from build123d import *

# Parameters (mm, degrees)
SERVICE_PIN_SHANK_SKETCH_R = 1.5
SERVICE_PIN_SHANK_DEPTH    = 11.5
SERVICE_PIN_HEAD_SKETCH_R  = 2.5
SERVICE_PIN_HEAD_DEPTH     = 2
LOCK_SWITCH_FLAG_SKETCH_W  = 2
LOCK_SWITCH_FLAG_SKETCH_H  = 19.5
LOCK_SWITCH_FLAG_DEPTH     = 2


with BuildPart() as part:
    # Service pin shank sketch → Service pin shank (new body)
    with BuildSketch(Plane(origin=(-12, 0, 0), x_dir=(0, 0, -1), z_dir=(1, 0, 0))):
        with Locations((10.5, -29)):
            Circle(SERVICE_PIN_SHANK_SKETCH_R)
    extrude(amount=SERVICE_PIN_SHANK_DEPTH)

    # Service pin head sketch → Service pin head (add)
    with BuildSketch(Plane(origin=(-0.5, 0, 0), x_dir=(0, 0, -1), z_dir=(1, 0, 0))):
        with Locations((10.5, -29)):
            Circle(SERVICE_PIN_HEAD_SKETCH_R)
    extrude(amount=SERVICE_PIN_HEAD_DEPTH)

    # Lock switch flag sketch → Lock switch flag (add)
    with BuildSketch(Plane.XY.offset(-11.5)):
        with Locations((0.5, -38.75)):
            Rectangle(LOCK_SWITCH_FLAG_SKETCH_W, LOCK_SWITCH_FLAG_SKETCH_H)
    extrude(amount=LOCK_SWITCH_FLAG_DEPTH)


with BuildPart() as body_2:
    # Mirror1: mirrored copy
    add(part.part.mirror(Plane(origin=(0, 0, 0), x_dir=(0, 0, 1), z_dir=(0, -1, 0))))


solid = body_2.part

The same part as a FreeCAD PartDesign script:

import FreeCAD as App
import Part
import Sketcher
from FreeCAD import Vector


def add_polygon(sketch, points):
    """Adds a closed chain of lines whose ends are joined by coincident constraints."""
    first, n = sketch.GeometryCount, len(points)
    for a, b in zip(points, points[1:] + points[:1]):
        sketch.addGeometry(Part.LineSegment(App.Vector(*a, 0), App.Vector(*b, 0)), False)
    for i in range(n):
        sketch.addConstraint(Sketcher.Constraint("Coincident", first + i, 2, first + (i + 1) % n, 1))

doc = App.newDocument("Part")
body = doc.addObject("PartDesign::Body", "Body")

# Sketch on YZ plane
sketch1 = body.newObject("Sketcher::SketchObject", "Sketch")
sketch1.AttachmentSupport = (doc.getObject("YZ_Plane"), [""])
sketch1.MapMode = "FlatFace"
sketch1.AttachmentOffset = App.Placement(Vector(0, 0, -12), App.Rotation())
sketch1.addGeometry(Part.Circle(Vector(-29, -10.5, 0), Vector(0, 0, 1), 1.5), False)
sketch1.addConstraint(Sketcher.Constraint("Diameter", 0, 3.0))
sketch1.addConstraint(Sketcher.Constraint("DistanceX", 0, 3, -1, 1, 29.0))
sketch1.addConstraint(Sketcher.Constraint("DistanceY", 0, 3, -1, 1, 10.5))
pad1 = body.newObject("PartDesign::Pad", "Pad")
pad1.Profile = sketch1
pad1.Length = 11.5

# Sketch on YZ plane
sketch2 = body.newObject("Sketcher::SketchObject", "Sketch001")
sketch2.AttachmentSupport = (doc.getObject("YZ_Plane"), [""])
sketch2.MapMode = "FlatFace"
sketch2.AttachmentOffset = App.Placement(Vector(0, 0, -0.5), App.Rotation())
sketch2.addGeometry(Part.Circle(Vector(-29, -10.5, 0), Vector(0, 0, 1), 2.5), False)
sketch2.addConstraint(Sketcher.Constraint("Diameter", 0, 5.0))
sketch2.addConstraint(Sketcher.Constraint("DistanceX", 0, 3, -1, 1, 29.0))
sketch2.addConstraint(Sketcher.Constraint("DistanceY", 0, 3, -1, 1, 10.5))
pad2 = body.newObject("PartDesign::Pad", "Pad001")
pad2.Profile = sketch2
pad2.Length = 2

# Sketch on XY plane
sketch3 = body.newObject("Sketcher::SketchObject", "Sketch002")
sketch3.AttachmentSupport = (doc.getObject("XY_Plane"), [""])
sketch3.MapMode = "FlatFace"
sketch3.AttachmentOffset = App.Placement(Vector(0, 0, -11.5), App.Rotation())
add_polygon(sketch3, [(-0.5, -29), (-0.5, -48.5), (1.5, -48.5), (1.5, -29)])  # lines 0-3
sketch3.addConstraint(Sketcher.Constraint("Vertical", 0))
sketch3.addConstraint(Sketcher.Constraint("Horizontal", 1))
sketch3.addConstraint(Sketcher.Constraint("Vertical", 2))
sketch3.addConstraint(Sketcher.Constraint("Horizontal", 3))
sketch3.addConstraint(Sketcher.Constraint("DistanceX", 1, 1, 1, 2, 2.0))
sketch3.addConstraint(Sketcher.Constraint("DistanceY", 0, 2, 0, 1, 19.5))
sketch3.addConstraint(Sketcher.Constraint("DistanceY", 2, 2, -1, 1, 29.0))
sketch3.addConstraint(Sketcher.Constraint("DistanceX", 0, 2, -1, 1, 0.5))
pad3 = body.newObject("PartDesign::Pad", "Pad002")
pad3.Profile = sketch3
pad3.Length = 2
body2 = doc.addObject("PartDesign::Body", "Body001")
doc.recompute()

mirroring = doc.addObject("Part::Mirroring", "Mirroring")
mirroring.Source = body
mirroring.Base = Vector(0, 0, 0)
mirroring.Normal = Vector(0, -1, 0)
body2.BaseFeature = mirroring
doc.recompute()
body.Visibility = False
mirroring.Visibility = False

doc.recompute()
